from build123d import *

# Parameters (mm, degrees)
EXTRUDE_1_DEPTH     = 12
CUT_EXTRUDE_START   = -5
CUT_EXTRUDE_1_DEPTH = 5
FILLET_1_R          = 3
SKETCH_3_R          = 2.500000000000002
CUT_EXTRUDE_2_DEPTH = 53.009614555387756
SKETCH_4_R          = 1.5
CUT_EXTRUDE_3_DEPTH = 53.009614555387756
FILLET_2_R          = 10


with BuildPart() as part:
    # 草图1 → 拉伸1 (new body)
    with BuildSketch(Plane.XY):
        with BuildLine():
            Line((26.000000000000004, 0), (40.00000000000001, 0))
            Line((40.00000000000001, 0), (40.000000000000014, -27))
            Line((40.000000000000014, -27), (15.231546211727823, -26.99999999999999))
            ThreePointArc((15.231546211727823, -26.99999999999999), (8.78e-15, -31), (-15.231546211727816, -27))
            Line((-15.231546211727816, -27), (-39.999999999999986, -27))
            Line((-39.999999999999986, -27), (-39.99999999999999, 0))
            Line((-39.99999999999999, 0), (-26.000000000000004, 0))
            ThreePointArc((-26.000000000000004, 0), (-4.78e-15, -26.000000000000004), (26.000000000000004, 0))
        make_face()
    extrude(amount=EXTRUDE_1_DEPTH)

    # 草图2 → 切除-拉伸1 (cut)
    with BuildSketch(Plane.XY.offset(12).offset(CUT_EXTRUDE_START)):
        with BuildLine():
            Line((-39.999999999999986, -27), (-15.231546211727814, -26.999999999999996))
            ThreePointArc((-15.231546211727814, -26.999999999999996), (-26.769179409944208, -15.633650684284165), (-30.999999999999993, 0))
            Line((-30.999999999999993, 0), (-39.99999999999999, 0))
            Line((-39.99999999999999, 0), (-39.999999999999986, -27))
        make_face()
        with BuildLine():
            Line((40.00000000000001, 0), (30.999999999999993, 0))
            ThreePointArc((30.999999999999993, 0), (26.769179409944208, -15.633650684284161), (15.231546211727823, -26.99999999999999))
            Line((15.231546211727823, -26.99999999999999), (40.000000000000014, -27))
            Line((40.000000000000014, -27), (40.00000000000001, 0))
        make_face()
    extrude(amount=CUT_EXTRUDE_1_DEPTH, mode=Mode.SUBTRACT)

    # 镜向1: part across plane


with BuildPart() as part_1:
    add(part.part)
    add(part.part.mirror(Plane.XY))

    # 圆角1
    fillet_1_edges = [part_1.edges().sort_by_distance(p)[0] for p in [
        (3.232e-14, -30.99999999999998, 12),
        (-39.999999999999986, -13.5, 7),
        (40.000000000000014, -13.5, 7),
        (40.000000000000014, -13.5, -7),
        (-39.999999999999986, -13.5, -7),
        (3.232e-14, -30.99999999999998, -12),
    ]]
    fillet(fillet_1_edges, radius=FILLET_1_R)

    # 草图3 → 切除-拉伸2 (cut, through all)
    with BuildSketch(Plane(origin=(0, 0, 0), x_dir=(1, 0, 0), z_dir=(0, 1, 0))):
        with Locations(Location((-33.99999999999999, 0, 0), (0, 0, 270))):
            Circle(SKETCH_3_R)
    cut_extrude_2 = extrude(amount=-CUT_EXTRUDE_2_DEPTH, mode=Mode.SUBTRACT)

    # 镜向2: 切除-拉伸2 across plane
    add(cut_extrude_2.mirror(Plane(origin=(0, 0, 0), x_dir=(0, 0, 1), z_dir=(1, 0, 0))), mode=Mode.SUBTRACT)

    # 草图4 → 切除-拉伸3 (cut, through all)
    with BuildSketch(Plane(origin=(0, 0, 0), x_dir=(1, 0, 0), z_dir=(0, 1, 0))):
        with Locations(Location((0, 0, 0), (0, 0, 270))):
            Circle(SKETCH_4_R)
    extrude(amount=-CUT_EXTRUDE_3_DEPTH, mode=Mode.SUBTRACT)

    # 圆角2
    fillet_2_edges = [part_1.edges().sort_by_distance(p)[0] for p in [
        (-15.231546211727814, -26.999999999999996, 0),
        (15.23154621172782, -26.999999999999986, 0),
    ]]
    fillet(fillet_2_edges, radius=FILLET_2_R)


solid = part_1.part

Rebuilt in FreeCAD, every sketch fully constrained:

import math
import FreeCAD as App
import Part
import Sketcher
Q = App.Units.Quantity


def edges_at(feature, points):
    """Names of the edges that pass closest to the given points."""
    edges = feature.Shape.Edges
    near = lambda p: min(range(len(edges)), key=lambda i: edges[i].distToShape(Part.Vertex(*p))[0])
    return sorted({f"Edge{near(p) + 1}" for p in points})

doc = App.newDocument("Part")
body = doc.addObject("PartDesign::Body", "Body")

# Sketch on XY plane
sketch1 = body.newObject("Sketcher::SketchObject", "Sketch")
sketch1.AttachmentSupport = (doc.getObject("XY_Plane"), [""])
sketch1.MapMode = "FlatFace"
sketch1.addGeometry(Part.LineSegment(App.Vector(40, 0, 0), App.Vector(26, 0, 0)), False)
sketch1.addGeometry(Part.ArcOfCircle(Part.Circle(App.Vector(0, 0, 0), App.Vector(0, 0, 1), 26), math.radians(180), math.radians(360)), False)
sketch1.addGeometry(Part.LineSegment(App.Vector(-26, 0, 0), App.Vector(-40, 0, 0)), False)
sketch1.addGeometry(Part.LineSegment(App.Vector(-40, 0, 0), App.Vector(-40, -27, 0)), False)
sketch1.addGeometry(Part.LineSegment(App.Vector(-40, -27, 0), App.Vector(-15, -27, 0)), False)
sketch1.addGeometry(Part.ArcOfCircle(Part.Circle(App.Vector(0, 0, 0), App.Vector(0, 0, 1), 31), math.radians(-119), math.radians(-61)), False)
sketch1.addGeometry(Part.LineSegment(App.Vector(15, -27, 0), App.Vector(40, -27, 0)), False)
sketch1.addGeometry(Part.LineSegment(App.Vector(40, -27, 0), App.Vector(40, 0, 0)), False)
sketch1.addConstraint(Sketcher.Constraint("Coincident", 0, 2, 1, 2))
sketch1.addConstraint(Sketcher.Constraint("Coincident", 1, 1, 2, 1))
sketch1.addConstraint(Sketcher.Constraint("Coincident", 2, 2, 3, 1))
sketch1.addConstraint(Sketcher.Constraint("Coincident", 3, 2, 4, 1))
sketch1.addConstraint(Sketcher.Constraint("Coincident", 4, 2, 5, 1))
sketch1.addConstraint(Sketcher.Constraint("Coincident", 5, 2, 6, 1))
sketch1.addConstraint(Sketcher.Constraint("Coincident", 6, 2, 7, 1))
sketch1.addConstraint(Sketcher.Constraint("Coincident", 7, 2, 0, 1))
sketch1.addConstraint(Sketcher.Constraint("Horizontal", 0))
sketch1.addConstraint(Sketcher.Constraint("Horizontal", 2))
sketch1.addConstraint(Sketcher.Constraint("Vertical", 3))
sketch1.addConstraint(Sketcher.Constraint("Horizontal", 4))
sketch1.addConstraint(Sketcher.Constraint("Horizontal", 6))
sketch1.addConstraint(Sketcher.Constraint("Vertical", 7))
sketch1.addConstraint(Sketcher.Constraint("Coincident", 1, 3, -1, 1))
sketch1.addConstraint(Sketcher.Constraint("Coincident", 5, 3, -1, 1))
sketch1.addConstraint(Sketcher.Constraint("Symmetric", 2, 2, 7, 2, -1, 1))
sketch1.addConstraint(Sketcher.Constraint("PointOnObject", 0, 2, -1))
sketch1.addConstraint(Sketcher.Constraint("Horizontal", 4, 2, 5, 2))
sketch1.addConstraint(Sketcher.Constraint("Radius", 1, Q("26 mm")))
sketch1.addConstraint(Sketcher.Constraint("Radius", 5, Q("31 mm")))
sketch1.addConstraint(Sketcher.Constraint("DistanceX", 0, 2, 0, 1, Q("14 mm")))
sketch1.addConstraint(Sketcher.Constraint("DistanceY", 3, 2, 3, 1, Q("27 mm")))
pad1 = body.newObject("PartDesign::Pad", "Pad")
pad1.Profile = sketch1
pad1.Length = 12

# Sketch on XY plane
sketch2 = body.newObject("Sketcher::SketchObject", "Sketch001")
sketch2.AttachmentSupport = (doc.getObject("XY_Plane"), [""])
sketch2.MapMode = "FlatFace"
sketch2.AttachmentOffset = App.Placement(App.Vector(0, 0, 7), App.Rotation())
sketch2.addGeometry(Part.LineSegment(App.Vector(-40, -27, 0), App.Vector(-15, -27, 0)), False)
sketch2.addGeometry(Part.ArcOfCircle(Part.Circle(App.Vector(0, 0, 0), App.Vector(0, 0, 1), 31), math.radians(180), math.radians(241)), False)
sketch2.addGeometry(Part.LineSegment(App.Vector(-31, 0, 0), App.Vector(-40, 0, 0)), False)
sketch2.addGeometry(Part.LineSegment(App.Vector(-40, 0, 0), App.Vector(-40, -27, 0)), False)
sketch2.addGeometry(Part.LineSegment(App.Vector(40, 0, 0), App.Vector(31, 0, 0)), False)
sketch2.addGeometry(Part.ArcOfCircle(Part.Circle(App.Vector(0, 0, 0), App.Vector(0, 0, 1), 31), math.radians(-61), math.radians(0)), False)
sketch2.addGeometry(Part.LineSegment(App.Vector(15, -27, 0), App.Vector(40, -27, 0)), False)
sketch2.addGeometry(Part.LineSegment(App.Vector(40, -27, 0), App.Vector(40, 0, 0)), False)
sketch2.addConstraint(Sketcher.Constraint("Coincident", 0, 2, 1, 2))
sketch2.addConstraint(Sketcher.Constraint("Coincident", 1, 1, 2, 1))
sketch2.addConstraint(Sketcher.Constraint("Coincident", 2, 2, 3, 1))
sketch2.addConstraint(Sketcher.Constraint("Coincident", 3, 2, 0, 1))
sketch2.addConstraint(Sketcher.Constraint("Coincident", 4, 2, 5, 2))
sketch2.addConstraint(Sketcher.Constraint("Coincident", 5, 1, 6, 1))
sketch2.addConstraint(Sketcher.Constraint("Coincident", 6, 2, 7, 1))
sketch2.addConstraint(Sketcher.Constraint("Coincident", 7, 2, 4, 1))
sketch2.addConstraint(Sketcher.Constraint("Horizontal", 0))
sketch2.addConstraint(Sketcher.Constraint("Horizontal", 2))
sketch2.addConstraint(Sketcher.Constraint("Vertical", 3))
sketch2.addConstraint(Sketcher.Constraint("Horizontal", 4))
sketch2.addConstraint(Sketcher.Constraint("Horizontal", 6))
sketch2.addConstraint(Sketcher.Constraint("Vertical", 7))
sketch2.addConstraint(Sketcher.Constraint("Coincident", 1, 3, -1, 1))
sketch2.addConstraint(Sketcher.Constraint("Coincident", 5, 3, -1, 1))
sketch2.addConstraint(Sketcher.Constraint("Equal", 1, 5))
sketch2.addConstraint(Sketcher.Constraint("Symmetric", 2, 2, 7, 2, -1, 1))
sketch2.addConstraint(Sketcher.Constraint("PointOnObject", 1, 1, -1))
sketch2.addConstraint(Sketcher.Constraint("Horizontal", 3, 2, 5, 1))
sketch2.addConstraint(Sketcher.Constraint("Radius", 1, Q("31 mm")))
sketch2.addConstraint(Sketcher.Constraint("DistanceX", 2, 2, 2, 1, Q("9 mm")))
sketch2.addConstraint(Sketcher.Constraint("DistanceY", 3, 2, 3, 1, Q("27 mm")))
pocket1 = body.newObject("PartDesign::Pocket", "Pocket")
pocket1.Profile = sketch2
pocket1.Length = 5
pocket1.Reversed = True
body2 = doc.addObject("PartDesign::Body", "Body001")
doc.recompute()

body2.BaseFeature = body
doc.recompute()

mirroring = doc.addObject("Part::Mirroring", "Mirroring")
mirroring.Source = body
mirroring.Base = App.Vector(0, 0, 0)
mirroring.Normal = App.Vector(0, 0, 1)
body3 = doc.addObject("PartDesign::Body", "Body002")
body3.BaseFeature = mirroring
boolean = body2.newObject("PartDesign::Boolean", "Boolean")
boolean.Type = "Fuse"
boolean.addObjects([body3])
doc.recompute()

fillet = body2.newObject("PartDesign::Fillet", "Fillet")
fillet.Base = (boolean, edges_at(boolean, [
    (0, -31, 12),
    (-40, -13.5, 7),
    (40, -13.5, 7),
    (40, -13.5, -7),
    (-40, -13.5, -7),
    (0, -31, -12),
]))
fillet.Radius = 3

# Sketch on XZ plane
sketch3 = body2.newObject("Sketcher::SketchObject", "Sketch002")
sketch3.AttachmentSupport = (doc.getObject("XZ_Plane001"), [""])
sketch3.MapMode = "FlatFace"
sketch3.addGeometry(Part.Circle(App.Vector(-34, 0, 0), App.Vector(0, 0, 1), 2.5), False)
sketch3.addConstraint(Sketcher.Constraint("PointOnObject", 0, 3, -1))
sketch3.addConstraint(Sketcher.Constraint("Diameter", 0, Q("5 mm")))
sketch3.addConstraint(Sketcher.Constraint("DistanceX", 0, 3, -1, 1, Q("34 mm")))
pocket2 = body2.newObject("PartDesign::Pocket", "Pocket001")
pocket2.Profile = sketch3
pocket2.Type = "ThroughAll"
pocket2.Reversed = True
doc.recompute()

mirrored = body2.newObject("PartDesign::Mirrored", "Mirrored")
mirrored.Originals = [pocket2]
mirrored.MirrorPlane = (doc.getObject("YZ_Plane001"), [""])
body2.Tip = mirrored

# Sketch on XZ plane
sketch4 = body2.newObject("Sketcher::SketchObject", "Sketch003")
sketch4.AttachmentSupport = (doc.getObject("XZ_Plane001"), [""])
sketch4.MapMode = "FlatFace"
sketch4.addGeometry(Part.Circle(App.Vector(0, 0, 0), App.Vector(0, 0, 1), 1.5), False)
sketch4.addConstraint(Sketcher.Constraint("Coincident", 0, 3, -1, 1))
sketch4.addConstraint(Sketcher.Constraint("Diameter", 0, Q("3 mm")))
pocket3 = body2.newObject("PartDesign::Pocket", "Pocket002")
pocket3.Profile = sketch4
pocket3.Type = "ThroughAll"
pocket3.Reversed = True
doc.recompute()

fillet2 = body2.newObject("PartDesign::Fillet", "Fillet001")
fillet2.Base = (pocket3, edges_at(pocket3, [(-15.232, -27, 0), (15.232, -27, 0)]))
fillet2.Radius = 10
mirroring.Visibility = False

doc.recompute()
